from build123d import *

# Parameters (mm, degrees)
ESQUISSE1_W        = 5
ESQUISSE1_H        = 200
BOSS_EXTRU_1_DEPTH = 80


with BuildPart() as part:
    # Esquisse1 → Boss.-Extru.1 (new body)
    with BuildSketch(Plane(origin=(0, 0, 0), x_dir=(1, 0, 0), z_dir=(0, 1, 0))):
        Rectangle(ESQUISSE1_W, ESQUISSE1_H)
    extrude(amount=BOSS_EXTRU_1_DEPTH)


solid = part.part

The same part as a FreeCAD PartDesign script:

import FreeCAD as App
import Part
import Sketcher
from FreeCAD import Vector

doc = App.newDocument("Part")
body = doc.addObject("PartDesign::Body", "Body")

# Sketch on XZ plane
sketch1 = doc.addObject("Sketcher::SketchObject", "Sketch")
body.addObject(sketch1)
sketch1.AttachmentSupport = (doc.XZ_Plane, [""])
sketch1.MapMode = "FlatFace"
sketch1.addGeometry([
    Part.LineSegment(Vector(-2.5, -100, 0), Vector(-2.5, 100, 0)),
    Part.LineSegment(Vector(-2.5, 100, 0), Vector(2.5, 100, 0)),
    Part.LineSegment(Vector(2.5, 100, 0), Vector(2.5, -100, 0)),
    Part.LineSegment(Vector(2.5, -100, 0), Vector(-2.5, -100, 0)),
], False)
sketch1.addConstraint([
    Sketcher.Constraint("Coincident", 0, 2, 1, 1),
    Sketcher.Constraint("Coincident", 1, 2, 2, 1),
    Sketcher.Constraint("Coincident", 2, 2, 3, 1),
    Sketcher.Constraint("Coincident", 3, 2, 0, 1),
    Sketcher.Constraint("Vertical", 0),
    Sketcher.Constraint("Horizontal", 1),
    Sketcher.Constraint("Vertical", 2),
    Sketcher.Constraint("Horizontal", 3),
    Sketcher.Constraint("Symmetric", 0, 2, 2, 2, -1, 1),
    Sketcher.Constraint("DistanceX", 1, 1, 1, 2, 5.0),
    Sketcher.Constraint("DistanceY", 0, 1, 0, 2, 200.0),
])
pad1 = doc.addObject("PartDesign::Pad", "Pad")
body.addObject(pad1)
pad1.Profile = sketch1
pad1.Length = 80
pad1.Reversed = True

doc.recompute()
